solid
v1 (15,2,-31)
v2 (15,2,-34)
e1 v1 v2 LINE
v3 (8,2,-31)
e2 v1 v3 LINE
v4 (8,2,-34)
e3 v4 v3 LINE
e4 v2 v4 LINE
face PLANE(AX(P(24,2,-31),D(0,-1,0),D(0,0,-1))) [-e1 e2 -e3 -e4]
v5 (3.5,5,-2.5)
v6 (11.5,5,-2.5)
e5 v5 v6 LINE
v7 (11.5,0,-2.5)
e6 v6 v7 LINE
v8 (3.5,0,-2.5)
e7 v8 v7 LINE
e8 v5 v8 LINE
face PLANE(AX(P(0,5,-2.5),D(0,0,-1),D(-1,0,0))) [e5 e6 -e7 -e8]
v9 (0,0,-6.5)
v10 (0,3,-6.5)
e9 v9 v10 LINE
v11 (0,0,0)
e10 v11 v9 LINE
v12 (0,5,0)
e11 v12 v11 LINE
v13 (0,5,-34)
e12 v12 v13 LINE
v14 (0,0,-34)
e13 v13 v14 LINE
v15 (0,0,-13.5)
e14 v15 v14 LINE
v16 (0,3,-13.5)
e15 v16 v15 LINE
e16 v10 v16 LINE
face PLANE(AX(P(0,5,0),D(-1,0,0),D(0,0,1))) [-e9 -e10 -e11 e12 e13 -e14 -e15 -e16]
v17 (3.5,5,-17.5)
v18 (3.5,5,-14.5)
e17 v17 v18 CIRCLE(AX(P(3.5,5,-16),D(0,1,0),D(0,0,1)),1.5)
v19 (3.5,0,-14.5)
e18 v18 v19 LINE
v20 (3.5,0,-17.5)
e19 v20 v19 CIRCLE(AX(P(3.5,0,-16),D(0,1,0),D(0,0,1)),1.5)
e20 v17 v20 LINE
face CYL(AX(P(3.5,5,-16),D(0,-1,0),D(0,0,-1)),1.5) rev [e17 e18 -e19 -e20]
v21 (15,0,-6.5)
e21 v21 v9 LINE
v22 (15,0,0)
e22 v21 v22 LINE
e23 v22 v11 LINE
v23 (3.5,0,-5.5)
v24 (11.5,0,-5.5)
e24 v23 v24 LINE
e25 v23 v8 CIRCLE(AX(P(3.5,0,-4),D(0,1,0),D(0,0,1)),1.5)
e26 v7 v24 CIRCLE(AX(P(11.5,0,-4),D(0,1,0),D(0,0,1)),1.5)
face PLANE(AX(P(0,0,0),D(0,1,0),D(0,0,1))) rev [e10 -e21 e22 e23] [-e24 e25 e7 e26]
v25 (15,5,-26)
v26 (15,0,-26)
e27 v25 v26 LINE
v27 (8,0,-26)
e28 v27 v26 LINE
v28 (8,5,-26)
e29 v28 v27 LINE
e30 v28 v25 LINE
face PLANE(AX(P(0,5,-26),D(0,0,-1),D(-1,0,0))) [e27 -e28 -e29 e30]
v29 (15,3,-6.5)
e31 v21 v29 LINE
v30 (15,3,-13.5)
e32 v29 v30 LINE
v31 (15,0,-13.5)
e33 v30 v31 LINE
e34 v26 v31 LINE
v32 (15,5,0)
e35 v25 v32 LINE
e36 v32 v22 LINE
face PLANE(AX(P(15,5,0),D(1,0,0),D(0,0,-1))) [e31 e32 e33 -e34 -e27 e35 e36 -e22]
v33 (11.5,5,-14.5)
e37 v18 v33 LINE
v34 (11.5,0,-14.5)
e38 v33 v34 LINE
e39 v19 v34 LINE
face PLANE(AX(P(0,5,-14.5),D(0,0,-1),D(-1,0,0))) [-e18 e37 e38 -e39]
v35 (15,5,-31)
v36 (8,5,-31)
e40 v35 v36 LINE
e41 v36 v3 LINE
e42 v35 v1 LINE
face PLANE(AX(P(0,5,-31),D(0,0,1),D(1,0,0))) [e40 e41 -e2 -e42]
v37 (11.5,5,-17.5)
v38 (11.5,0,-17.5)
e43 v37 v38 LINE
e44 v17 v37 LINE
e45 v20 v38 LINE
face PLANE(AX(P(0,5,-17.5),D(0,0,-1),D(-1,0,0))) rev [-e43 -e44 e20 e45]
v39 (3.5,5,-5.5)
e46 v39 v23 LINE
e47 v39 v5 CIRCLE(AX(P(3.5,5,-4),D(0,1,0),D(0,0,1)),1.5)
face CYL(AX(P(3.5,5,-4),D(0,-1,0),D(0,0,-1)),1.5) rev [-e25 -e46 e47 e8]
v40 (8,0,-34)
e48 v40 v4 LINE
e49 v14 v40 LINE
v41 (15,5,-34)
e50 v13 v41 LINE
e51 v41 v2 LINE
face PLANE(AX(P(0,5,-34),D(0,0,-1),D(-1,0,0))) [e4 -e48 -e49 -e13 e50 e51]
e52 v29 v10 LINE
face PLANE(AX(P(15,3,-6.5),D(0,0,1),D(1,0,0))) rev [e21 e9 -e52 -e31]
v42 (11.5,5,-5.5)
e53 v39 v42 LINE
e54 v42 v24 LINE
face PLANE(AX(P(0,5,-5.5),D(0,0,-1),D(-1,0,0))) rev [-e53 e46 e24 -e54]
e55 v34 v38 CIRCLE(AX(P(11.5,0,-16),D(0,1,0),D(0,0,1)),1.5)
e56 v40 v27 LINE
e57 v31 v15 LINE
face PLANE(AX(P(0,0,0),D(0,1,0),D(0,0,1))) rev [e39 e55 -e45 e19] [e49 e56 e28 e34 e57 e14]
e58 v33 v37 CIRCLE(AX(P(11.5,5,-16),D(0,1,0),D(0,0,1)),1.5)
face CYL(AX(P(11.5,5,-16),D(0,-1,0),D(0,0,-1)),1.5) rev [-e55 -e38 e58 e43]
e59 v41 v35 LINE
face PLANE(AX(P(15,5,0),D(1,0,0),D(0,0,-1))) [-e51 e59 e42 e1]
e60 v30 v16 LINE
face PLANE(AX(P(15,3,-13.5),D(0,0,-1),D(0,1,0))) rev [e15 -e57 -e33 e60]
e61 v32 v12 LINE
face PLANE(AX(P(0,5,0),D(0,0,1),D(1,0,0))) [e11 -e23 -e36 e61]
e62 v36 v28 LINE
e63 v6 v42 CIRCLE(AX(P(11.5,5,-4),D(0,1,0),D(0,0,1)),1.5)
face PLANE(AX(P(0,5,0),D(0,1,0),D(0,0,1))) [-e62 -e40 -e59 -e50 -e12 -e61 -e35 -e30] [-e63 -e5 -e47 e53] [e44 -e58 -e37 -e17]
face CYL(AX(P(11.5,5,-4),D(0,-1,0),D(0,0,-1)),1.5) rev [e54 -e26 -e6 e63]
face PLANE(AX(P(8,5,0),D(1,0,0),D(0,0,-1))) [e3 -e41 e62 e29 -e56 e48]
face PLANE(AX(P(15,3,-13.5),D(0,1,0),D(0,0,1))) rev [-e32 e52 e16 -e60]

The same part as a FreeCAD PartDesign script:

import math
import FreeCAD as App
import Part
import Sketcher

V = App.Vector
Q = App.Units.Quantity

doc = App.newDocument("Part")
body = doc.addObject("PartDesign::Body", "Body")

sketch1 = doc.addObject("Sketcher::SketchObject", "Sketch")
body.addObject(sketch1)
sketch1.AttachmentSupport = (doc.XZ_Plane, [""])
sketch1.MapMode = "FlatFace"
sketch1.addGeometry([
    Part.LineSegment(V(15, -34, 0), V(0, -34, 0)),
    Part.LineSegment(V(0, -34, 0), V(0, 0, 0)),
    Part.LineSegment(V(0, 0, 0), V(15, 0, 0)),
    Part.LineSegment(V(15, 0, 0), V(15, -26, 0)),
    Part.LineSegment(V(15, -26, 0), V(8, -26, 0)),
    Part.LineSegment(V(8, -26, 0), V(8, -31, 0)),
    Part.LineSegment(V(8, -31, 0), V(15, -31, 0)),
    Part.LineSegment(V(15, -31, 0), V(15, -34, 0)),
    Part.LineSegment(V(11.5, -2.5, 0), V(3.5, -2.5, 0)),
    Part.ArcOfCircle(Part.Circle(V(3.5, -4, 0), V(0, 0, 1), 1.5), math.radians(90), math.radians(270)),
    Part.LineSegment(V(3.5, -5.5, 0), V(11.5, -5.5, 0)),
    Part.ArcOfCircle(Part.Circle(V(11.5, -4, 0), V(0, 0, 1), 1.5), math.radians(-90), math.radians(90)),
    Part.LineSegment(V(11.5, -14.5, 0), V(3.5, -14.5, 0)),
    Part.ArcOfCircle(Part.Circle(V(3.5, -16, 0), V(0, 0, 1), 1.5), math.radians(90), math.radians(270)),
    Part.LineSegment(V(3.5, -17.5, 0), V(11.5, -17.5, 0)),
    Part.ArcOfCircle(Part.Circle(V(11.5, -16, 0), V(0, 0, 1), 1.5), math.radians(-90), math.radians(90)),
], False)
sketch1.addConstraint([
    Sketcher.Constraint("Coincident", 0, 2, 1, 1),
    Sketcher.Constraint("Coincident", 1, 2, 2, 1),
    Sketcher.Constraint("Coincident", 2, 2, 3, 1),
    Sketcher.Constraint("Coincident", 3, 2, 4, 1),
    Sketcher.Constraint("Coincident", 4, 2, 5, 1),
    Sketcher.Constraint("Coincident", 5, 2, 6, 1),
    Sketcher.Constraint("Coincident", 6, 2, 7, 1),
    Sketcher.Constraint("Coincident", 7, 2, 0, 1),
    Sketcher.Constraint("Tangent", 8, 2, 9, 1),
    Sketcher.Constraint("Tangent", 9, 2, 10, 1),
    Sketcher.Constraint("Tangent", 10, 2, 11, 1),
    Sketcher.Constraint("Tangent", 11, 2, 8, 1),
    Sketcher.Constraint("Tangent", 12, 2, 13, 1),
    Sketcher.Constraint("Tangent", 13, 2, 14, 1),
    Sketcher.Constraint("Tangent", 14, 2, 15, 1),
    Sketcher.Constraint("Tangent", 15, 2, 12, 1),
    Sketcher.Constraint("Horizontal", 0),
    Sketcher.Constraint("Vertical", 1),
    Sketcher.Constraint("Horizontal", 2),
    Sketcher.Constraint("Vertical", 3),
    Sketcher.Constraint("Horizontal", 4),
    Sketcher.Constraint("Vertical", 5),
    Sketcher.Constraint("Horizontal", 6),
    Sketcher.Constraint("Vertical", 7),
    Sketcher.Constraint("Horizontal", 8),
    Sketcher.Constraint("Horizontal", 10),
    Sketcher.Constraint("Horizontal", 12),
    Sketcher.Constraint("Horizontal", 14),
    Sketcher.Constraint("Coincident", 1, 2, -1, 1),
    Sketcher.Constraint("Equal", 11, 13),
    Sketcher.Constraint("Vertical", 9, 3, 13, 3),
    Sketcher.Constraint("Vertical", 11, 3, 15, 3),
    Sketcher.Constraint("Vertical", 3, 2, 6, 2),
    Sketcher.Constraint("Radius", 9, Q("1.5 mm")),
    Sketcher.Constraint("DistanceX", 0, 2, 0, 1, Q("15 mm")),
    Sketcher.Constraint("DistanceX", 4, 2, 4, 1, Q("7 mm")),
    Sketcher.Constraint("DistanceX", 8, 2, 8, 1, Q("8 mm")),
    Sketcher.Constraint("DistanceY", 1, 1, 1, 2, Q("34 mm")),
    Sketcher.Constraint("DistanceY", 3, 2, 3, 1, Q("26 mm")),
    Sketcher.Constraint("DistanceY", 5, 2, 5, 1, Q("5 mm")),
    Sketcher.Constraint("DistanceY", 9, 3, -1, 1, Q("4 mm")),
    Sketcher.Constraint("DistanceY", 13, 3, -1, 1, Q("16 mm")),
    Sketcher.Constraint("DistanceX", -1, 1, 9, 3, Q("3.5 mm")),
])
pad1 = doc.addObject("PartDesign::Pad", "Pad")
body.addObject(pad1)
pad1.Profile = sketch1
pad1.Length = 5
pad1.Reversed = True

sketch2 = doc.addObject("Sketcher::SketchObject", "Sketch001")
body.addObject(sketch2)
sketch2.AttachmentSupport = (doc.YZ_Plane, [""])
sketch2.MapMode = "FlatFace"
sketch2.addGeometry([
    Part.LineSegment(V(3, -13.5, 0), V(0, -13.5, 0)),
    Part.LineSegment(V(0, -13.5, 0), V(0, -6.5, 0)),
    Part.LineSegment(V(0, -6.5, 0), V(3, -6.5, 0)),
    Part.LineSegment(V(3, -6.5, 0), V(3, -13.5, 0)),
], False)
sketch2.addConstraint([
    Sketcher.Constraint("Coincident", 0, 2, 1, 1),
    Sketcher.Constraint("Coincident", 1, 2, 2, 1),
    Sketcher.Constraint("Coincident", 2, 2, 3, 1),
    Sketcher.Constraint("Coincident", 3, 2, 0, 1),
    Sketcher.Constraint("Horizontal", 0),
    Sketcher.Constraint("Vertical", 1),
    Sketcher.Constraint("Horizontal", 2),
    Sketcher.Constraint("Vertical", 3),
    Sketcher.Constraint("PointOnObject", 0, 2, -2),
    Sketcher.Constraint("DistanceX", 0, 2, 0, 1, Q("3 mm")),
    Sketcher.Constraint("DistanceY", 1, 1, 1, 2, Q("7 mm")),
    Sketcher.Constraint("DistanceY", 0, 2, -1, 1, Q("13.5 mm")),
])
pocket1 = doc.addObject("PartDesign::Pocket", "Pocket")
body.addObject(pocket1)
pocket1.Profile = sketch2
pocket1.Type = "ThroughAll"
pocket1.Reversed = True

sketch3 = doc.addObject("Sketcher::SketchObject", "Sketch002")
body.addObject(sketch3)
sketch3.AttachmentSupport = (doc.YZ_Plane, [""])
sketch3.MapMode = "FlatFace"
sketch3.AttachmentOffset = App.Placement(V(0, 0, 8), App.Rotation())
sketch3.addGeometry([
    Part.LineSegment(V(2, -31, 0), V(0, -31, 0)),
    Part.LineSegment(V(0, -31, 0), V(0, -34, 0)),
    Part.LineSegment(V(0, -34, 0), V(2, -34, 0)),
    Part.LineSegment(V(2, -34, 0), V(2, -31, 0)),
], False)
sketch3.addConstraint([
    Sketcher.Constraint("Coincident", 0, 2, 1, 1),
    Sketcher.Constraint("Coincident", 1, 2, 2, 1),
    Sketcher.Constraint("Coincident", 2, 2, 3, 1),
    Sketcher.Constraint("Coincident", 3, 2, 0, 1),
    Sketcher.Constraint("Horizontal", 0),
    Sketcher.Constraint("Vertical", 1),
    Sketcher.Constraint("Horizontal", 2),
    Sketcher.Constraint("Vertical", 3),
    Sketcher.Constraint("PointOnObject", 0, 2, -2),
    Sketcher.Constraint("DistanceX", 0, 2, 0, 1, Q("2 mm")),
    Sketcher.Constraint("DistanceY", 1, 2, 1, 1, Q("3 mm")),
    Sketcher.Constraint("DistanceY", 0, 2, -1, 1, Q("31 mm")),
])
pocket2 = doc.addObject("PartDesign::Pocket", "Pocket001")
body.addObject(pocket2)
pocket2.Profile = sketch3
pocket2.Length = 16
pocket2.Reversed = True

doc.recompute()
